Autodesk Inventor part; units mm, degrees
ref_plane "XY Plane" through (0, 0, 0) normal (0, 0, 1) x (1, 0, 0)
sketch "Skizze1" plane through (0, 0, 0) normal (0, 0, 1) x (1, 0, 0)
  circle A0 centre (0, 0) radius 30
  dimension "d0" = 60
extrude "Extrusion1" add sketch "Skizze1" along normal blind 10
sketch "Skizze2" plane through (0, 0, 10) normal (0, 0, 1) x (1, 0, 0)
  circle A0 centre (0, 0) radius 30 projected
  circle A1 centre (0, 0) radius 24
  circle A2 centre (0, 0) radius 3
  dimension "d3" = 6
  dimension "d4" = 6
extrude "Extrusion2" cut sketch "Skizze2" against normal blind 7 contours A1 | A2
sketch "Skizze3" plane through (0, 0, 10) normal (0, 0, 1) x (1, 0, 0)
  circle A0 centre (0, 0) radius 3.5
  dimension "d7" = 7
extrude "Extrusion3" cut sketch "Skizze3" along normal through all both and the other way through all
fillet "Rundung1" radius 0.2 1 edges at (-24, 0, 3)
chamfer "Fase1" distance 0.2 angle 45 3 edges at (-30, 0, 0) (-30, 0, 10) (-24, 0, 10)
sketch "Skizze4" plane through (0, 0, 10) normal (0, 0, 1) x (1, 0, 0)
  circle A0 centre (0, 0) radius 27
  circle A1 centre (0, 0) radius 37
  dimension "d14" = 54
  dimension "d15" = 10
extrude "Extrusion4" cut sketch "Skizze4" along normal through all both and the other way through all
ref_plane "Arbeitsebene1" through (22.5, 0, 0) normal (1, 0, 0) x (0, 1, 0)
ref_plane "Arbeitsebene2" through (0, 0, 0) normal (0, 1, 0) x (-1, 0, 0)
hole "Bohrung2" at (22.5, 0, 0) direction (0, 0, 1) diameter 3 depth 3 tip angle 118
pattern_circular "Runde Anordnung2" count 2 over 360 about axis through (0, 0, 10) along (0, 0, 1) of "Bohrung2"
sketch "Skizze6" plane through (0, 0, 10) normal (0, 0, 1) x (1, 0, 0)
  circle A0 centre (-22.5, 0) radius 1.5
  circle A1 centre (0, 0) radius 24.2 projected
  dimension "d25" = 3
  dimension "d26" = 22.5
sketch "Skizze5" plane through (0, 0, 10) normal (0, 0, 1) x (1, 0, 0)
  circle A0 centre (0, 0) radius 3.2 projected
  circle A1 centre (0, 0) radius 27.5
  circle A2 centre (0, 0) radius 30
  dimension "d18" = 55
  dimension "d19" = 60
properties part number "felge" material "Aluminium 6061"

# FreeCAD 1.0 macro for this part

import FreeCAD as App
import Part
import Sketcher

V = App.Vector


def edges_at(feature, points):
    """Names of the edges that pass closest to the given points."""
    edges = feature.Shape.Edges
    near = lambda p: min(range(len(edges)), key=lambda i: edges[i].distToShape(Part.Vertex(*p))[0])
    return sorted({f"Edge{near(p) + 1}" for p in points})

doc = App.newDocument("Part")
body = doc.addObject("PartDesign::Body", "Body")

# Sketch on XY plane
sketch1 = body.newObject("Sketcher::SketchObject", "Sketch")
sketch1.AttachmentSupport = (doc.getObject("XY_Plane"), [""])
sketch1.MapMode = "FlatFace"
sketch1.addGeometry(Part.Circle(V(0, 0, 0), V(0, 0, 1), 30), False)
sketch1.addConstraint([
    Sketcher.Constraint("Coincident", 0, 3, -1, 1),
    Sketcher.Constraint("Diameter", 0, 60.0),
])
pad1 = body.newObject("PartDesign::Pad", "Pad")
pad1.Profile = sketch1
pad1.Length = 10

# Sketch on XY plane
sketch2 = body.newObject("Sketcher::SketchObject", "Sketch001")
sketch2.AttachmentSupport = (doc.getObject("XY_Plane"), [""])
sketch2.MapMode = "FlatFace"
sketch2.AttachmentOffset = App.Placement(V(0, 0, 10), App.Rotation())
sketch2.addGeometry(Part.Circle(V(0, 0, 0), V(0, 0, 1), 24), False)
sketch2.addConstraint([
    Sketcher.Constraint("Coincident", 0, 3, -1, 1),
    Sketcher.Constraint("Diameter", 0, 48.0),
])
pocket1 = body.newObject("PartDesign::Pocket", "Pocket")
pocket1.Profile = sketch2
pocket1.Length = 7

# Sketch on XY plane
sketch3 = body.newObject("Sketcher::SketchObject", "Sketch002")
sketch3.AttachmentSupport = (doc.getObject("XY_Plane"), [""])
sketch3.MapMode = "FlatFace"
sketch3.AttachmentOffset = App.Placement(V(0, 0, 10), App.Rotation())
sketch3.addGeometry(Part.Circle(V(0, 0, 0), V(0, 0, 1), 3.5), False)
sketch3.addConstraint([
    Sketcher.Constraint("Coincident", 0, 3, -1, 1),
    Sketcher.Constraint("Diameter", 0, 7.0),
])
pocket2 = body.newObject("PartDesign::Pocket", "Pocket001")
pocket2.Profile = sketch3
pocket2.Type = "ThroughAll"
pocket2.Midplane = True
doc.recompute()

fillet = body.newObject("PartDesign::Fillet", "Fillet")
fillet.Base = (pocket2, edges_at(pocket2, [(-24, 0, 3)]))
fillet.Radius = 0.2
doc.recompute()

chamfer = body.newObject("PartDesign::Chamfer", "Chamfer")
chamfer.Base = (fillet, edges_at(fillet, [(-30, 0, 0), (-30, 0, 10), (-24, 0, 10)]))
chamfer.Size = 0.2

# Sketch on XY plane
sketch4 = body.newObject("Sketcher::SketchObject", "Sketch003")
sketch4.AttachmentSupport = (doc.getObject("XY_Plane"), [""])
sketch4.MapMode = "FlatFace"
sketch4.AttachmentOffset = App.Placement(V(0, 0, 10), App.Rotation())
sketch4.addGeometry([
    Part.Circle(V(0, 0, 0), V(0, 0, 1), 37),
    Part.Circle(V(0, 0, 0), V(0, 0, 1), 27),
], False)
sketch4.addConstraint([
    Sketcher.Constraint("Coincident", 0, 3, -1, 1),
    Sketcher.Constraint("Coincident", 1, 3, -1, 1),
    Sketcher.Constraint("Diameter", 1, 54.0),
    Sketcher.Constraint("Diameter", 0, 74.0),
])
pocket3 = body.newObject("PartDesign::Pocket", "Pocket002")
pocket3.Profile = sketch4
pocket3.Type = "ThroughAll"
pocket3.Midplane = True

# Sketch on XY plane
sketch5 = body.newObject("Sketcher::SketchObject", "Sketch004")
sketch5.AttachmentSupport = (doc.getObject("XY_Plane"), [""])
sketch5.MapMode = "FlatFace"
sketch5.addGeometry(Part.Circle(V(22.5, 0, 0), V(0, 0, 1), 1.5), False)
sketch5.addConstraint([
    Sketcher.Constraint("PointOnObject", 0, 3, -1),
    Sketcher.Constraint("Diameter", 0, 3.0),
    Sketcher.Constraint("DistanceX", -1, 1, 0, 3, 22.5),
])
doc.recompute()
hole = body.newObject("PartDesign::Hole", "Hole")
hole.Profile = sketch5
hole.ThreadType = "None"
hole.Diameter = 3
hole.DepthType = "Dimension"
hole.Depth = 3
hole.DrillPoint = "Angled"
hole.DrillPointAngle = 118
hole.Reversed = True
doc.recompute()

polarpattern = body.newObject("PartDesign::PolarPattern", "PolarPattern")
polarpattern.Originals = [hole]
polarpattern.Axis = (doc.getObject("Z_Axis"), [""])
polarpattern.Angle = 360
polarpattern.Occurrences = 2
body.Tip = polarpattern

doc.recompute()
